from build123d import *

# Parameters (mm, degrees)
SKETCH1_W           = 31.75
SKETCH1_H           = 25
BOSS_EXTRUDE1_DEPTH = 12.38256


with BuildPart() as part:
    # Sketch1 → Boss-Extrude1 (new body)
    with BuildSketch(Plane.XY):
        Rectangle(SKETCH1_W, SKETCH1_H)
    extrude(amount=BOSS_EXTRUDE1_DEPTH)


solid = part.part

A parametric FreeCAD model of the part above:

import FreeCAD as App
import Part
import Sketcher


def add_polygon(sketch, points):
    """Adds a closed chain of lines whose ends are joined by coincident constraints."""
    first, n = sketch.GeometryCount, len(points)
    for a, b in zip(points, points[1:] + points[:1]):
        sketch.addGeometry(Part.LineSegment(App.Vector(*a, 0), App.Vector(*b, 0)), False)
    for i in range(n):
        sketch.addConstraint(Sketcher.Constraint("Coincident", first + i, 2, first + (i + 1) % n, 1))

doc = App.newDocument("Part")
params = doc.addObject("Spreadsheet::Sheet", "Params")
for row, (alias, value) in enumerate([
    ("sketch1_height", "25 mm"),
    ("sketch1_width", "31.75 mm"),
    ("pad1_length", "12.38256 mm"),
], start=1):
    params.set(f"A{row}", alias)
    params.set(f"B{row}", "=" + value)
    params.setAlias(f"B{row}", alias)

body = doc.addObject("PartDesign::Body", "Body")

sketch1 = body.newObject("Sketcher::SketchObject", "Sketch")
sketch1.AttachmentSupport = (doc.getObject("XY_Plane"), [""])
sketch1.MapMode = "FlatFace"
add_polygon(sketch1, [(-15.875, 12.5), (-15.875, -12.5), (15.875, -12.5), (15.875, 12.5)])
sketch1.addConstraint([
    Sketcher.Constraint("Vertical", 0),
    Sketcher.Constraint("Horizontal", 1),
    Sketcher.Constraint("Vertical", 2),
    Sketcher.Constraint("Horizontal", 3),
    Sketcher.Constraint("Symmetric", 0, 2, 2, 2, -1, 1),
    Sketcher.Constraint("DistanceY", 0, 2, 0, 1, 25.0),
    Sketcher.Constraint("DistanceX", 1, 1, 1, 2, 31.75),
])
sketch1.setExpression("Constraints[9]", "Params.sketch1_height")
sketch1.setExpression("Constraints[10]", "Params.sketch1_width")
pad1 = body.newObject("PartDesign::Pad", "Pad")
pad1.Profile = sketch1
pad1.setExpression("Length", "Params.pad1_length")

doc.recompute()
